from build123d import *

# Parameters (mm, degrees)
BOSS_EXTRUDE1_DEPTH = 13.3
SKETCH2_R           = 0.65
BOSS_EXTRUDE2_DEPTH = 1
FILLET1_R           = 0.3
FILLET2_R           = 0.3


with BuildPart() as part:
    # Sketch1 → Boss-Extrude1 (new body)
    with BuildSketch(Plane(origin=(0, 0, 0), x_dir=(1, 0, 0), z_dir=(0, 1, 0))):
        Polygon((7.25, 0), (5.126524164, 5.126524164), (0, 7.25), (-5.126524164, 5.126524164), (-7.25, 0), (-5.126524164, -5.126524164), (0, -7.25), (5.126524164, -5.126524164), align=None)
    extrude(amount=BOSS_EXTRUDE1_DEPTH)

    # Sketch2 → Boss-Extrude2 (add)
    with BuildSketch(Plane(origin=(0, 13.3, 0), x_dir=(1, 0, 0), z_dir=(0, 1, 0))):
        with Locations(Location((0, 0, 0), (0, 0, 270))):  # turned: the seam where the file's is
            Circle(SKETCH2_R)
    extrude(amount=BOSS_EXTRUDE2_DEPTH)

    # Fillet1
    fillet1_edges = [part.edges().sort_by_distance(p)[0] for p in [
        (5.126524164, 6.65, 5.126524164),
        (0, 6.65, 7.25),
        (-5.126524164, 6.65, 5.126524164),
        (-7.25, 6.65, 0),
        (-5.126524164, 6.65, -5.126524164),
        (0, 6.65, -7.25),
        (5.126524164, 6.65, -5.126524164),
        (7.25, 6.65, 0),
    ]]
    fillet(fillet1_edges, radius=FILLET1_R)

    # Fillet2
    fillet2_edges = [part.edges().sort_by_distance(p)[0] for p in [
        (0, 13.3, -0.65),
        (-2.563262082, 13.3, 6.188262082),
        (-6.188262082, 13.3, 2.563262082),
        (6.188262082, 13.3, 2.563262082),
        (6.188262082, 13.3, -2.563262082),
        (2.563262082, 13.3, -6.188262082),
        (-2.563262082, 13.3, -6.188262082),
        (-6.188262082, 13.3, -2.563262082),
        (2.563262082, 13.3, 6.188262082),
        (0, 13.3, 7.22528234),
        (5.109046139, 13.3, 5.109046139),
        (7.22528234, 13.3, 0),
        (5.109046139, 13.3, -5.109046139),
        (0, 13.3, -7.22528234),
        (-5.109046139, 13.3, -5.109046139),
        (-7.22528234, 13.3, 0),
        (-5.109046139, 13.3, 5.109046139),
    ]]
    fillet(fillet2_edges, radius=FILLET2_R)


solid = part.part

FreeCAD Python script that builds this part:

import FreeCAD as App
import Part
import Sketcher
Q = App.Units.Quantity


def edges_at(feature, points):
    """Names of the edges that pass closest to the given points."""
    edges = feature.Shape.Edges
    near = lambda p: min(range(len(edges)), key=lambda i: edges[i].distToShape(Part.Vertex(*p))[0])
    return sorted({f"Edge{near(p) + 1}" for p in points})


def add_polygon(sketch, points):
    """Adds a closed chain of lines whose ends are joined by coincident constraints."""
    first, n = sketch.GeometryCount, len(points)
    for a, b in zip(points, points[1:] + points[:1]):
        sketch.addGeometry(Part.LineSegment(App.Vector(*a, 0), App.Vector(*b, 0)), False)
    for i in range(n):
        sketch.addConstraint(Sketcher.Constraint("Coincident", first + i, 2, first + (i + 1) % n, 1))

doc = App.newDocument("Part")
body = doc.addObject("PartDesign::Body", "Body")

# Sketch on XZ plane
sketch1 = body.newObject("Sketcher::SketchObject", "Sketch")
sketch1.AttachmentSupport = (doc.getObject("XZ_Plane"), [""])
sketch1.MapMode = "FlatFace"
add_polygon(sketch1, [(7, 0), (5, -5), (0, -7), (-5, -5), (-7, 0), (-5, 5), (0, 7), (5, 5)])  # lines 0-7
sketch1.addConstraint([
    Sketcher.Constraint("Symmetric", 0, 2, 4, 2, -1, 1),
    Sketcher.Constraint("Symmetric", 1, 2, 5, 2, -1, 1),
    Sketcher.Constraint("Symmetric", 2, 2, 6, 2, -1, 1),
    Sketcher.Constraint("Symmetric", 3, 2, 7, 2, -1, 1),
    Sketcher.Constraint("Symmetric", 0, 2, 2, 2, -2),
    Sketcher.Constraint("PointOnObject", 1, 2, -2),
    Sketcher.Constraint("PointOnObject", 3, 2, -1),
    Sketcher.Constraint("Perpendicular", 0, 2),
    Sketcher.Constraint("Equal", 0, 1),
    Sketcher.Constraint("Angle", 0, Q("-112.5 deg")),
    Sketcher.Constraint("DistanceY", 1, 2, 5, 2, 14.5),
])
pad1 = body.newObject("PartDesign::Pad", "Pad")
pad1.Profile = sketch1
pad1.Length = 13.3
pad1.Reversed = True

# Sketch on XZ plane
sketch2 = body.newObject("Sketcher::SketchObject", "Sketch001")
sketch2.AttachmentSupport = (doc.getObject("XZ_Plane"), [""])
sketch2.MapMode = "FlatFace"
sketch2.AttachmentOffset = App.Placement(App.Vector(0, 0, -13.3), App.Rotation())
sketch2.addGeometry(Part.Circle(App.Vector(0, 0, 0), App.Vector(0, 0, 1), 0.7), False)
sketch2.addConstraint([
    Sketcher.Constraint("Coincident", 0, 3, -1, 1),
    Sketcher.Constraint("Diameter", 0, 1.3),
])
pad2 = body.newObject("PartDesign::Pad", "Pad001")
pad2.Profile = sketch2
pad2.Length = 1
pad2.Reversed = True
doc.recompute()

fillet = body.newObject("PartDesign::Fillet", "Fillet")
fillet.Base = (pad2, edges_at(pad2, [
    (5.127, 6.65, 5.127),
    (0, 6.65, 7.25),
    (-5.127, 6.65, 5.127),
    (-7.25, 6.65, 0),
    (-5.127, 6.65, -5.127),
    (0, 6.65, -7.25),
    (5.127, 6.65, -5.127),
    (7.25, 6.65, 0),
]))
fillet.Radius = 0.3
doc.recompute()

fillet2 = body.newObject("PartDesign::Fillet", "Fillet001")
fillet2.Base = (fillet, edges_at(fillet, [
    (0, 13.3, -0.65),
    (-2.563, 13.3, 6.188),
    (-6.188, 13.3, 2.563),
    (6.188, 13.3, 2.563),
    (6.188, 13.3, -2.563),
    (2.563, 13.3, -6.188),
    (-2.563, 13.3, -6.188),
    (-6.188, 13.3, -2.563),
    (2.563, 13.3, 6.188),
    (0, 13.3, 7.225),
    (5.109, 13.3, 5.109),
    (7.225, 13.3, 0),
    (5.109, 13.3, -5.109),
    (0, 13.3, -7.225),
    (-5.109, 13.3, -5.109),
    (-7.225, 13.3, 0),
    (-5.109, 13.3, 5.109),
]))
fillet2.Radius = 0.3

doc.recompute()
